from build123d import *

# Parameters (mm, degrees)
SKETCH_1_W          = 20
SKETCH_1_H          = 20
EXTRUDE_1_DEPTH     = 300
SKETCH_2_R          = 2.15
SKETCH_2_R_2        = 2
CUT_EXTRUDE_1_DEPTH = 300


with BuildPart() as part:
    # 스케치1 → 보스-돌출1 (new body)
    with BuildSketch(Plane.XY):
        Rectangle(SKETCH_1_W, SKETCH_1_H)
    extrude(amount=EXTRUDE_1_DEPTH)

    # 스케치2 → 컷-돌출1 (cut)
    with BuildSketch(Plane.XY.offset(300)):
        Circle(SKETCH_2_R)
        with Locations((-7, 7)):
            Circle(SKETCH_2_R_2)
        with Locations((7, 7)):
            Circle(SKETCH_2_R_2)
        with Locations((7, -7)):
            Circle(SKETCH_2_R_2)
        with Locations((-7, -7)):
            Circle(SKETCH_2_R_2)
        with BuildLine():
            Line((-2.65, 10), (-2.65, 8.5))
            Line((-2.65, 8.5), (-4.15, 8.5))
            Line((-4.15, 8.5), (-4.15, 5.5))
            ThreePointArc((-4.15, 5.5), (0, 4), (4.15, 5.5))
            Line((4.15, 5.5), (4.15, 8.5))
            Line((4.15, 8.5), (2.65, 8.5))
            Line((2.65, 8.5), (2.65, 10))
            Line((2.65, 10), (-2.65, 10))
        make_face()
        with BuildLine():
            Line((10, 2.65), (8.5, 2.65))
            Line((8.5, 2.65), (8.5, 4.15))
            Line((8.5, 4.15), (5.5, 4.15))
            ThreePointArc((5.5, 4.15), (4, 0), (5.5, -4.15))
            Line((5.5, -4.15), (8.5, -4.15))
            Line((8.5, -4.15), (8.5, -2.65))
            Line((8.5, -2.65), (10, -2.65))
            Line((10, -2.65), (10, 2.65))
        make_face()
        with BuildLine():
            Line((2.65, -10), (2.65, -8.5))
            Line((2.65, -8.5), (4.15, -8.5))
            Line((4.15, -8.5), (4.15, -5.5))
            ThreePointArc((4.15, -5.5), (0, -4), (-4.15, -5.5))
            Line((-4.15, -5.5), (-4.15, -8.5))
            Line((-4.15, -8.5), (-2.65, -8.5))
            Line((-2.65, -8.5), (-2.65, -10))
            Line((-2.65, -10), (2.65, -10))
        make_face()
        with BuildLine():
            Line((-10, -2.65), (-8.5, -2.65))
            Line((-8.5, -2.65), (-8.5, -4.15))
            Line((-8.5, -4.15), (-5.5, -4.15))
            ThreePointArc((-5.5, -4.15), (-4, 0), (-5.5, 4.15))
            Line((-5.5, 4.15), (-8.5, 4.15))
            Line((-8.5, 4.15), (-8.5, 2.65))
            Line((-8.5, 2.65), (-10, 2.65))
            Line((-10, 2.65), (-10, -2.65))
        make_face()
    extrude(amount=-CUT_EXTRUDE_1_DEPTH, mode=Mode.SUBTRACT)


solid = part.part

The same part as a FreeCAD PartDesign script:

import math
import FreeCAD as App
import Part
import Sketcher
from FreeCAD import Vector
Q = App.Units.Quantity


def add_polygon(sketch, points):
    """Adds a closed chain of lines whose ends are joined by coincident constraints."""
    first, n = sketch.GeometryCount, len(points)
    for a, b in zip(points, points[1:] + points[:1]):
        sketch.addGeometry(Part.LineSegment(App.Vector(*a, 0), App.Vector(*b, 0)), False)
    for i in range(n):
        sketch.addConstraint(Sketcher.Constraint("Coincident", first + i, 2, first + (i + 1) % n, 1))

doc = App.newDocument("Part")
body = doc.addObject("PartDesign::Body", "Body")

sketch1 = doc.addObject("Sketcher::SketchObject", "Sketch")
body.addObject(sketch1)
sketch1.AttachmentSupport = (doc.XY_Plane, [""])
sketch1.MapMode = "FlatFace"
add_polygon(sketch1, [(-10, 10), (-10, -10), (10, -10), (10, 10)])
sketch1.addConstraint([
    Sketcher.Constraint("Vertical", 0),
    Sketcher.Constraint("Horizontal", 1),
    Sketcher.Constraint("Vertical", 2),
    Sketcher.Constraint("Horizontal", 3),
    Sketcher.Constraint("Symmetric", 0, 2, 2, 2, -1, 1),
    Sketcher.Constraint("Equal", 3, 0),
    Sketcher.Constraint("DistanceX", 1, 1, 1, 2, Q("20 mm")),
])
pad1 = doc.addObject("PartDesign::Pad", "Pad")
body.addObject(pad1)
pad1.Profile = sketch1
pad1.Length = 300

sketch2 = doc.addObject("Sketcher::SketchObject", "Sketch001")
body.addObject(sketch2)
sketch2.AttachmentSupport = (doc.XY_Plane, [""])
sketch2.MapMode = "FlatFace"
sketch2.AttachmentOffset = App.Placement(Vector(0, 0, 300), App.Rotation())
sketch2.addGeometry([
    Part.Circle(Vector(0, 0, 0), Vector(0, 0, 1), 2.1),
    Part.Circle(Vector(-7, 7, 0), Vector(0, 0, 1), 2),
    Part.Circle(Vector(7, 7, 0), Vector(0, 0, 1), 2),
    Part.Circle(Vector(7, -7, 0), Vector(0, 0, 1), 2),
    Part.Circle(Vector(-7, -7, 0), Vector(0, 0, 1), 2),
    Part.LineSegment(Vector(-2.6, 10, 0), Vector(-2.6, 8.5, 0)),
    Part.LineSegment(Vector(-2.6, 8.5, 0), Vector(-4.2, 8.5, 0)),
    Part.LineSegment(Vector(-4.2, 8.5, 0), Vector(-4.2, 5.5, 0)),
    Part.ArcOfCircle(Part.Circle(Vector(0, 10.5, 0), Vector(0, 0, 1), 6.5), math.radians(-130), math.radians(-50)),
    Part.LineSegment(Vector(4.2, 5.5, 0), Vector(4.2, 8.5, 0)),
    Part.LineSegment(Vector(4.2, 8.5, 0), Vector(2.6, 8.5, 0)),
    Part.LineSegment(Vector(2.6, 8.5, 0), Vector(2.6, 10, 0)),
    Part.LineSegment(Vector(2.6, 10, 0), Vector(-2.6, 10, 0)),
    Part.LineSegment(Vector(10, 2.6, 0), Vector(8.5, 2.6, 0)),
    Part.LineSegment(Vector(8.5, 2.6, 0), Vector(8.5, 4.2, 0)),
    Part.LineSegment(Vector(8.5, 4.2, 0), Vector(5.5, 4.2, 0)),
    Part.ArcOfCircle(Part.Circle(Vector(10.5, 0, 0), Vector(0, 0, 1), 6.5), math.radians(140), math.radians(220)),
    Part.LineSegment(Vector(5.5, -4.2, 0), Vector(8.5, -4.2, 0)),
    Part.LineSegment(Vector(8.5, -4.2, 0), Vector(8.5, -2.6, 0)),
    Part.LineSegment(Vector(8.5, -2.6, 0), Vector(10, -2.6, 0)),
    Part.LineSegment(Vector(10, -2.6, 0), Vector(10, 2.6, 0)),
    Part.LineSegment(Vector(2.6, -10, 0), Vector(2.6, -8.5, 0)),
    Part.LineSegment(Vector(2.6, -8.5, 0), Vector(4.2, -8.5, 0)),
    Part.LineSegment(Vector(4.2, -8.5, 0), Vector(4.2, -5.5, 0)),
    Part.ArcOfCircle(Part.Circle(Vector(0, -10.5, 0), Vector(0, 0, 1), 6.5), math.radians(50), math.radians(130)),
    Part.LineSegment(Vector(-4.2, -5.5, 0), Vector(-4.2, -8.5, 0)),
    Part.LineSegment(Vector(-4.2, -8.5, 0), Vector(-2.6, -8.5, 0)),
    Part.LineSegment(Vector(-2.6, -8.5, 0), Vector(-2.6, -10, 0)),
    Part.LineSegment(Vector(-2.6, -10, 0), Vector(2.6, -10, 0)),
    Part.LineSegment(Vector(-10, -2.6, 0), Vector(-8.5, -2.6, 0)),
    Part.LineSegment(Vector(-8.5, -2.6, 0), Vector(-8.5, -4.2, 0)),
    Part.LineSegment(Vector(-8.5, -4.2, 0), Vector(-5.5, -4.2, 0)),
    Part.ArcOfCircle(Part.Circle(Vector(-10.5, 0, 0), Vector(0, 0, 1), 6.5), math.radians(-40), math.radians(40)),
    Part.LineSegment(Vector(-5.5, 4.2, 0), Vector(-8.5, 4.2, 0)),
    Part.LineSegment(Vector(-8.5, 4.2, 0), Vector(-8.5, 2.6, 0)),
    Part.LineSegment(Vector(-8.5, 2.6, 0), Vector(-10, 2.6, 0)),
    Part.LineSegment(Vector(-10, 2.6, 0), Vector(-10, -2.6, 0)),
], False)
sketch2.addConstraint([
    Sketcher.Constraint("Coincident", 5, 2, 6, 1),
    Sketcher.Constraint("Coincident", 6, 2, 7, 1),
    Sketcher.Constraint("Coincident", 7, 2, 8, 1),
    Sketcher.Constraint("Coincident", 8, 2, 9, 1),
    Sketcher.Constraint("Coincident", 9, 2, 10, 1),
    Sketcher.Constraint("Coincident", 10, 2, 11, 1),
    Sketcher.Constraint("Coincident", 11, 2, 12, 1),
    Sketcher.Constraint("Coincident", 12, 2, 5, 1),
    Sketcher.Constraint("Coincident", 13, 2, 14, 1),
    Sketcher.Constraint("Coincident", 14, 2, 15, 1),
    Sketcher.Constraint("Coincident", 15, 2, 16, 1),
    Sketcher.Constraint("Coincident", 16, 2, 17, 1),
    Sketcher.Constraint("Coincident", 17, 2, 18, 1),
    Sketcher.Constraint("Coincident", 18, 2, 19, 1),
    Sketcher.Constraint("Coincident", 19, 2, 20, 1),
    Sketcher.Constraint("Coincident", 20, 2, 13, 1),
    Sketcher.Constraint("Coincident", 21, 2, 22, 1),
    Sketcher.Constraint("Coincident", 22, 2, 23, 1),
    Sketcher.Constraint("Coincident", 23, 2, 24, 1),
    Sketcher.Constraint("Coincident", 24, 2, 25, 1),
    Sketcher.Constraint("Coincident", 25, 2, 26, 1),
    Sketcher.Constraint("Coincident", 26, 2, 27, 1),
    Sketcher.Constraint("Coincident", 27, 2, 28, 1),
    Sketcher.Constraint("Coincident", 28, 2, 21, 1),
    Sketcher.Constraint("Coincident", 29, 2, 30, 1),
    Sketcher.Constraint("Coincident", 30, 2, 31, 1),
    Sketcher.Constraint("Coincident", 31, 2, 32, 1),
    Sketcher.Constraint("Coincident", 32, 2, 33, 1),
    Sketcher.Constraint("Coincident", 33, 2, 34, 1),
    Sketcher.Constraint("Coincident", 34, 2, 35, 1),
    Sketcher.Constraint("Coincident", 35, 2, 36, 1),
    Sketcher.Constraint("Coincident", 36, 2, 29, 1),
    Sketcher.Constraint("Vertical", 5),
    Sketcher.Constraint("Horizontal", 6),
    Sketcher.Constraint("Vertical", 7),
    Sketcher.Constraint("Vertical", 9),
    Sketcher.Constraint("Horizontal", 10),
    Sketcher.Constraint("Vertical", 11),
    Sketcher.Constraint("Horizontal", 12),
    Sketcher.Constraint("Horizontal", 13),
    Sketcher.Constraint("Vertical", 14),
    Sketcher.Constraint("Horizontal", 15),
    Sketcher.Constraint("Horizontal", 17),
    Sketcher.Constraint("Vertical", 18),
    Sketcher.Constraint("Horizontal", 19),
    Sketcher.Constraint("Vertical", 20),
    Sketcher.Constraint("Vertical", 21),
    Sketcher.Constraint("Horizontal", 22),
    Sketcher.Constraint("Vertical", 23),
    Sketcher.Constraint("Vertical", 25),
    Sketcher.Constraint("Horizontal", 26),
    Sketcher.Constraint("Vertical", 27),
    Sketcher.Constraint("Horizontal", 28),
    Sketcher.Constraint("Horizontal", 29),
    Sketcher.Constraint("Vertical", 30),
    Sketcher.Constraint("Horizontal", 31),
    Sketcher.Constraint("Horizontal", 33),
    Sketcher.Constraint("Vertical", 34),
    Sketcher.Constraint("Horizontal", 35),
    Sketcher.Constraint("Vertical", 36),
    Sketcher.Constraint("Coincident", 0, 3, -1, 1),
    Sketcher.Constraint("Equal", 1, 2),
    Sketcher.Constraint("Equal", 2, 3),
    Sketcher.Constraint("Equal", 3, 4),
    Sketcher.Constraint("Equal", 8, 16),
    Sketcher.Constraint("Equal", 16, 24),
    Sketcher.Constraint("Equal", 24, 32),
    Sketcher.Constraint("Symmetric", 1, 3, 3, 3, -1, 1),
    Sketcher.Constraint("Symmetric", 2, 3, 4, 3, -1, 1),
    Sketcher.Constraint("Symmetric", 8, 3, 24, 3, -1, 1),
    Sketcher.Constraint("Symmetric", 16, 3, 32, 3, -1, 1),
    Sketcher.Constraint("Symmetric", 5, 2, 21, 2, -1, 1),
    Sketcher.Constraint("Symmetric", 9, 2, 25, 2, -1, 1),
    Sketcher.Constraint("Symmetric", 11, 2, 27, 2, -1, 1),
    Sketcher.Constraint("Symmetric", 13, 2, 29, 2, -1, 1),
    Sketcher.Constraint("Symmetric", 17, 2, 33, 2, -1, 1),
    Sketcher.Constraint("Symmetric", 19, 2, 35, 2, -1, 1),
    Sketcher.Constraint("Symmetric", 1, 3, 2, 3, -2),
    Sketcher.Constraint("Symmetric", 7, 2, 8, 2, -2),
    Sketcher.Constraint("Symmetric", 5, 2, 10, 2, -2),
    Sketcher.Constraint("Symmetric", 18, 2, 29, 2, -2),
    Sketcher.Constraint("Symmetric", 16, 2, 31, 2, -2),
    Sketcher.Constraint("Horizontal", 23, 2, 24, 2),
    Sketcher.Constraint("Horizontal", 15, 2, 32, 2),
    Sketcher.Constraint("Equal", 10, 13),
    Sketcher.Constraint("Equal", 35, 5),
    Sketcher.Constraint("Equal", 33, 7),
    Sketcher.Constraint("Equal", 11, 14),
    Sketcher.Constraint("Equal", 28, 20),
    Sketcher.Constraint("Diameter", 1, Q("4 mm")),
    Sketcher.Constraint("Diameter", 0, Q("4.3 mm")),
    Sketcher.Constraint("DistanceX", 15, 2, 15, 1, Q("3 mm")),
    Sketcher.Constraint("DistanceX", 6, 2, 6, 1, Q("1.5 mm")),
    Sketcher.Constraint("DistanceX", 12, 2, 12, 1, Q("5.3 mm")),
    Sketcher.Constraint("DistanceX", 1, 3, -1, 1, Q("7 mm")),
    Sketcher.Constraint("DistanceY", -1, 1, 1, 3, Q("7 mm")),
    Sketcher.Constraint("DistanceY", -1, 1, 11, 2, Q("10 mm")),
    Sketcher.Constraint("DistanceX", -1, 1, 19, 2, Q("10 mm")),
    Sketcher.Constraint("Radius", 8, Q("6.490833 mm")),
])
pocket1 = doc.addObject("PartDesign::Pocket", "Pocket")
body.addObject(pocket1)
pocket1.Profile = sketch2
pocket1.Length = 300

doc.recompute()
